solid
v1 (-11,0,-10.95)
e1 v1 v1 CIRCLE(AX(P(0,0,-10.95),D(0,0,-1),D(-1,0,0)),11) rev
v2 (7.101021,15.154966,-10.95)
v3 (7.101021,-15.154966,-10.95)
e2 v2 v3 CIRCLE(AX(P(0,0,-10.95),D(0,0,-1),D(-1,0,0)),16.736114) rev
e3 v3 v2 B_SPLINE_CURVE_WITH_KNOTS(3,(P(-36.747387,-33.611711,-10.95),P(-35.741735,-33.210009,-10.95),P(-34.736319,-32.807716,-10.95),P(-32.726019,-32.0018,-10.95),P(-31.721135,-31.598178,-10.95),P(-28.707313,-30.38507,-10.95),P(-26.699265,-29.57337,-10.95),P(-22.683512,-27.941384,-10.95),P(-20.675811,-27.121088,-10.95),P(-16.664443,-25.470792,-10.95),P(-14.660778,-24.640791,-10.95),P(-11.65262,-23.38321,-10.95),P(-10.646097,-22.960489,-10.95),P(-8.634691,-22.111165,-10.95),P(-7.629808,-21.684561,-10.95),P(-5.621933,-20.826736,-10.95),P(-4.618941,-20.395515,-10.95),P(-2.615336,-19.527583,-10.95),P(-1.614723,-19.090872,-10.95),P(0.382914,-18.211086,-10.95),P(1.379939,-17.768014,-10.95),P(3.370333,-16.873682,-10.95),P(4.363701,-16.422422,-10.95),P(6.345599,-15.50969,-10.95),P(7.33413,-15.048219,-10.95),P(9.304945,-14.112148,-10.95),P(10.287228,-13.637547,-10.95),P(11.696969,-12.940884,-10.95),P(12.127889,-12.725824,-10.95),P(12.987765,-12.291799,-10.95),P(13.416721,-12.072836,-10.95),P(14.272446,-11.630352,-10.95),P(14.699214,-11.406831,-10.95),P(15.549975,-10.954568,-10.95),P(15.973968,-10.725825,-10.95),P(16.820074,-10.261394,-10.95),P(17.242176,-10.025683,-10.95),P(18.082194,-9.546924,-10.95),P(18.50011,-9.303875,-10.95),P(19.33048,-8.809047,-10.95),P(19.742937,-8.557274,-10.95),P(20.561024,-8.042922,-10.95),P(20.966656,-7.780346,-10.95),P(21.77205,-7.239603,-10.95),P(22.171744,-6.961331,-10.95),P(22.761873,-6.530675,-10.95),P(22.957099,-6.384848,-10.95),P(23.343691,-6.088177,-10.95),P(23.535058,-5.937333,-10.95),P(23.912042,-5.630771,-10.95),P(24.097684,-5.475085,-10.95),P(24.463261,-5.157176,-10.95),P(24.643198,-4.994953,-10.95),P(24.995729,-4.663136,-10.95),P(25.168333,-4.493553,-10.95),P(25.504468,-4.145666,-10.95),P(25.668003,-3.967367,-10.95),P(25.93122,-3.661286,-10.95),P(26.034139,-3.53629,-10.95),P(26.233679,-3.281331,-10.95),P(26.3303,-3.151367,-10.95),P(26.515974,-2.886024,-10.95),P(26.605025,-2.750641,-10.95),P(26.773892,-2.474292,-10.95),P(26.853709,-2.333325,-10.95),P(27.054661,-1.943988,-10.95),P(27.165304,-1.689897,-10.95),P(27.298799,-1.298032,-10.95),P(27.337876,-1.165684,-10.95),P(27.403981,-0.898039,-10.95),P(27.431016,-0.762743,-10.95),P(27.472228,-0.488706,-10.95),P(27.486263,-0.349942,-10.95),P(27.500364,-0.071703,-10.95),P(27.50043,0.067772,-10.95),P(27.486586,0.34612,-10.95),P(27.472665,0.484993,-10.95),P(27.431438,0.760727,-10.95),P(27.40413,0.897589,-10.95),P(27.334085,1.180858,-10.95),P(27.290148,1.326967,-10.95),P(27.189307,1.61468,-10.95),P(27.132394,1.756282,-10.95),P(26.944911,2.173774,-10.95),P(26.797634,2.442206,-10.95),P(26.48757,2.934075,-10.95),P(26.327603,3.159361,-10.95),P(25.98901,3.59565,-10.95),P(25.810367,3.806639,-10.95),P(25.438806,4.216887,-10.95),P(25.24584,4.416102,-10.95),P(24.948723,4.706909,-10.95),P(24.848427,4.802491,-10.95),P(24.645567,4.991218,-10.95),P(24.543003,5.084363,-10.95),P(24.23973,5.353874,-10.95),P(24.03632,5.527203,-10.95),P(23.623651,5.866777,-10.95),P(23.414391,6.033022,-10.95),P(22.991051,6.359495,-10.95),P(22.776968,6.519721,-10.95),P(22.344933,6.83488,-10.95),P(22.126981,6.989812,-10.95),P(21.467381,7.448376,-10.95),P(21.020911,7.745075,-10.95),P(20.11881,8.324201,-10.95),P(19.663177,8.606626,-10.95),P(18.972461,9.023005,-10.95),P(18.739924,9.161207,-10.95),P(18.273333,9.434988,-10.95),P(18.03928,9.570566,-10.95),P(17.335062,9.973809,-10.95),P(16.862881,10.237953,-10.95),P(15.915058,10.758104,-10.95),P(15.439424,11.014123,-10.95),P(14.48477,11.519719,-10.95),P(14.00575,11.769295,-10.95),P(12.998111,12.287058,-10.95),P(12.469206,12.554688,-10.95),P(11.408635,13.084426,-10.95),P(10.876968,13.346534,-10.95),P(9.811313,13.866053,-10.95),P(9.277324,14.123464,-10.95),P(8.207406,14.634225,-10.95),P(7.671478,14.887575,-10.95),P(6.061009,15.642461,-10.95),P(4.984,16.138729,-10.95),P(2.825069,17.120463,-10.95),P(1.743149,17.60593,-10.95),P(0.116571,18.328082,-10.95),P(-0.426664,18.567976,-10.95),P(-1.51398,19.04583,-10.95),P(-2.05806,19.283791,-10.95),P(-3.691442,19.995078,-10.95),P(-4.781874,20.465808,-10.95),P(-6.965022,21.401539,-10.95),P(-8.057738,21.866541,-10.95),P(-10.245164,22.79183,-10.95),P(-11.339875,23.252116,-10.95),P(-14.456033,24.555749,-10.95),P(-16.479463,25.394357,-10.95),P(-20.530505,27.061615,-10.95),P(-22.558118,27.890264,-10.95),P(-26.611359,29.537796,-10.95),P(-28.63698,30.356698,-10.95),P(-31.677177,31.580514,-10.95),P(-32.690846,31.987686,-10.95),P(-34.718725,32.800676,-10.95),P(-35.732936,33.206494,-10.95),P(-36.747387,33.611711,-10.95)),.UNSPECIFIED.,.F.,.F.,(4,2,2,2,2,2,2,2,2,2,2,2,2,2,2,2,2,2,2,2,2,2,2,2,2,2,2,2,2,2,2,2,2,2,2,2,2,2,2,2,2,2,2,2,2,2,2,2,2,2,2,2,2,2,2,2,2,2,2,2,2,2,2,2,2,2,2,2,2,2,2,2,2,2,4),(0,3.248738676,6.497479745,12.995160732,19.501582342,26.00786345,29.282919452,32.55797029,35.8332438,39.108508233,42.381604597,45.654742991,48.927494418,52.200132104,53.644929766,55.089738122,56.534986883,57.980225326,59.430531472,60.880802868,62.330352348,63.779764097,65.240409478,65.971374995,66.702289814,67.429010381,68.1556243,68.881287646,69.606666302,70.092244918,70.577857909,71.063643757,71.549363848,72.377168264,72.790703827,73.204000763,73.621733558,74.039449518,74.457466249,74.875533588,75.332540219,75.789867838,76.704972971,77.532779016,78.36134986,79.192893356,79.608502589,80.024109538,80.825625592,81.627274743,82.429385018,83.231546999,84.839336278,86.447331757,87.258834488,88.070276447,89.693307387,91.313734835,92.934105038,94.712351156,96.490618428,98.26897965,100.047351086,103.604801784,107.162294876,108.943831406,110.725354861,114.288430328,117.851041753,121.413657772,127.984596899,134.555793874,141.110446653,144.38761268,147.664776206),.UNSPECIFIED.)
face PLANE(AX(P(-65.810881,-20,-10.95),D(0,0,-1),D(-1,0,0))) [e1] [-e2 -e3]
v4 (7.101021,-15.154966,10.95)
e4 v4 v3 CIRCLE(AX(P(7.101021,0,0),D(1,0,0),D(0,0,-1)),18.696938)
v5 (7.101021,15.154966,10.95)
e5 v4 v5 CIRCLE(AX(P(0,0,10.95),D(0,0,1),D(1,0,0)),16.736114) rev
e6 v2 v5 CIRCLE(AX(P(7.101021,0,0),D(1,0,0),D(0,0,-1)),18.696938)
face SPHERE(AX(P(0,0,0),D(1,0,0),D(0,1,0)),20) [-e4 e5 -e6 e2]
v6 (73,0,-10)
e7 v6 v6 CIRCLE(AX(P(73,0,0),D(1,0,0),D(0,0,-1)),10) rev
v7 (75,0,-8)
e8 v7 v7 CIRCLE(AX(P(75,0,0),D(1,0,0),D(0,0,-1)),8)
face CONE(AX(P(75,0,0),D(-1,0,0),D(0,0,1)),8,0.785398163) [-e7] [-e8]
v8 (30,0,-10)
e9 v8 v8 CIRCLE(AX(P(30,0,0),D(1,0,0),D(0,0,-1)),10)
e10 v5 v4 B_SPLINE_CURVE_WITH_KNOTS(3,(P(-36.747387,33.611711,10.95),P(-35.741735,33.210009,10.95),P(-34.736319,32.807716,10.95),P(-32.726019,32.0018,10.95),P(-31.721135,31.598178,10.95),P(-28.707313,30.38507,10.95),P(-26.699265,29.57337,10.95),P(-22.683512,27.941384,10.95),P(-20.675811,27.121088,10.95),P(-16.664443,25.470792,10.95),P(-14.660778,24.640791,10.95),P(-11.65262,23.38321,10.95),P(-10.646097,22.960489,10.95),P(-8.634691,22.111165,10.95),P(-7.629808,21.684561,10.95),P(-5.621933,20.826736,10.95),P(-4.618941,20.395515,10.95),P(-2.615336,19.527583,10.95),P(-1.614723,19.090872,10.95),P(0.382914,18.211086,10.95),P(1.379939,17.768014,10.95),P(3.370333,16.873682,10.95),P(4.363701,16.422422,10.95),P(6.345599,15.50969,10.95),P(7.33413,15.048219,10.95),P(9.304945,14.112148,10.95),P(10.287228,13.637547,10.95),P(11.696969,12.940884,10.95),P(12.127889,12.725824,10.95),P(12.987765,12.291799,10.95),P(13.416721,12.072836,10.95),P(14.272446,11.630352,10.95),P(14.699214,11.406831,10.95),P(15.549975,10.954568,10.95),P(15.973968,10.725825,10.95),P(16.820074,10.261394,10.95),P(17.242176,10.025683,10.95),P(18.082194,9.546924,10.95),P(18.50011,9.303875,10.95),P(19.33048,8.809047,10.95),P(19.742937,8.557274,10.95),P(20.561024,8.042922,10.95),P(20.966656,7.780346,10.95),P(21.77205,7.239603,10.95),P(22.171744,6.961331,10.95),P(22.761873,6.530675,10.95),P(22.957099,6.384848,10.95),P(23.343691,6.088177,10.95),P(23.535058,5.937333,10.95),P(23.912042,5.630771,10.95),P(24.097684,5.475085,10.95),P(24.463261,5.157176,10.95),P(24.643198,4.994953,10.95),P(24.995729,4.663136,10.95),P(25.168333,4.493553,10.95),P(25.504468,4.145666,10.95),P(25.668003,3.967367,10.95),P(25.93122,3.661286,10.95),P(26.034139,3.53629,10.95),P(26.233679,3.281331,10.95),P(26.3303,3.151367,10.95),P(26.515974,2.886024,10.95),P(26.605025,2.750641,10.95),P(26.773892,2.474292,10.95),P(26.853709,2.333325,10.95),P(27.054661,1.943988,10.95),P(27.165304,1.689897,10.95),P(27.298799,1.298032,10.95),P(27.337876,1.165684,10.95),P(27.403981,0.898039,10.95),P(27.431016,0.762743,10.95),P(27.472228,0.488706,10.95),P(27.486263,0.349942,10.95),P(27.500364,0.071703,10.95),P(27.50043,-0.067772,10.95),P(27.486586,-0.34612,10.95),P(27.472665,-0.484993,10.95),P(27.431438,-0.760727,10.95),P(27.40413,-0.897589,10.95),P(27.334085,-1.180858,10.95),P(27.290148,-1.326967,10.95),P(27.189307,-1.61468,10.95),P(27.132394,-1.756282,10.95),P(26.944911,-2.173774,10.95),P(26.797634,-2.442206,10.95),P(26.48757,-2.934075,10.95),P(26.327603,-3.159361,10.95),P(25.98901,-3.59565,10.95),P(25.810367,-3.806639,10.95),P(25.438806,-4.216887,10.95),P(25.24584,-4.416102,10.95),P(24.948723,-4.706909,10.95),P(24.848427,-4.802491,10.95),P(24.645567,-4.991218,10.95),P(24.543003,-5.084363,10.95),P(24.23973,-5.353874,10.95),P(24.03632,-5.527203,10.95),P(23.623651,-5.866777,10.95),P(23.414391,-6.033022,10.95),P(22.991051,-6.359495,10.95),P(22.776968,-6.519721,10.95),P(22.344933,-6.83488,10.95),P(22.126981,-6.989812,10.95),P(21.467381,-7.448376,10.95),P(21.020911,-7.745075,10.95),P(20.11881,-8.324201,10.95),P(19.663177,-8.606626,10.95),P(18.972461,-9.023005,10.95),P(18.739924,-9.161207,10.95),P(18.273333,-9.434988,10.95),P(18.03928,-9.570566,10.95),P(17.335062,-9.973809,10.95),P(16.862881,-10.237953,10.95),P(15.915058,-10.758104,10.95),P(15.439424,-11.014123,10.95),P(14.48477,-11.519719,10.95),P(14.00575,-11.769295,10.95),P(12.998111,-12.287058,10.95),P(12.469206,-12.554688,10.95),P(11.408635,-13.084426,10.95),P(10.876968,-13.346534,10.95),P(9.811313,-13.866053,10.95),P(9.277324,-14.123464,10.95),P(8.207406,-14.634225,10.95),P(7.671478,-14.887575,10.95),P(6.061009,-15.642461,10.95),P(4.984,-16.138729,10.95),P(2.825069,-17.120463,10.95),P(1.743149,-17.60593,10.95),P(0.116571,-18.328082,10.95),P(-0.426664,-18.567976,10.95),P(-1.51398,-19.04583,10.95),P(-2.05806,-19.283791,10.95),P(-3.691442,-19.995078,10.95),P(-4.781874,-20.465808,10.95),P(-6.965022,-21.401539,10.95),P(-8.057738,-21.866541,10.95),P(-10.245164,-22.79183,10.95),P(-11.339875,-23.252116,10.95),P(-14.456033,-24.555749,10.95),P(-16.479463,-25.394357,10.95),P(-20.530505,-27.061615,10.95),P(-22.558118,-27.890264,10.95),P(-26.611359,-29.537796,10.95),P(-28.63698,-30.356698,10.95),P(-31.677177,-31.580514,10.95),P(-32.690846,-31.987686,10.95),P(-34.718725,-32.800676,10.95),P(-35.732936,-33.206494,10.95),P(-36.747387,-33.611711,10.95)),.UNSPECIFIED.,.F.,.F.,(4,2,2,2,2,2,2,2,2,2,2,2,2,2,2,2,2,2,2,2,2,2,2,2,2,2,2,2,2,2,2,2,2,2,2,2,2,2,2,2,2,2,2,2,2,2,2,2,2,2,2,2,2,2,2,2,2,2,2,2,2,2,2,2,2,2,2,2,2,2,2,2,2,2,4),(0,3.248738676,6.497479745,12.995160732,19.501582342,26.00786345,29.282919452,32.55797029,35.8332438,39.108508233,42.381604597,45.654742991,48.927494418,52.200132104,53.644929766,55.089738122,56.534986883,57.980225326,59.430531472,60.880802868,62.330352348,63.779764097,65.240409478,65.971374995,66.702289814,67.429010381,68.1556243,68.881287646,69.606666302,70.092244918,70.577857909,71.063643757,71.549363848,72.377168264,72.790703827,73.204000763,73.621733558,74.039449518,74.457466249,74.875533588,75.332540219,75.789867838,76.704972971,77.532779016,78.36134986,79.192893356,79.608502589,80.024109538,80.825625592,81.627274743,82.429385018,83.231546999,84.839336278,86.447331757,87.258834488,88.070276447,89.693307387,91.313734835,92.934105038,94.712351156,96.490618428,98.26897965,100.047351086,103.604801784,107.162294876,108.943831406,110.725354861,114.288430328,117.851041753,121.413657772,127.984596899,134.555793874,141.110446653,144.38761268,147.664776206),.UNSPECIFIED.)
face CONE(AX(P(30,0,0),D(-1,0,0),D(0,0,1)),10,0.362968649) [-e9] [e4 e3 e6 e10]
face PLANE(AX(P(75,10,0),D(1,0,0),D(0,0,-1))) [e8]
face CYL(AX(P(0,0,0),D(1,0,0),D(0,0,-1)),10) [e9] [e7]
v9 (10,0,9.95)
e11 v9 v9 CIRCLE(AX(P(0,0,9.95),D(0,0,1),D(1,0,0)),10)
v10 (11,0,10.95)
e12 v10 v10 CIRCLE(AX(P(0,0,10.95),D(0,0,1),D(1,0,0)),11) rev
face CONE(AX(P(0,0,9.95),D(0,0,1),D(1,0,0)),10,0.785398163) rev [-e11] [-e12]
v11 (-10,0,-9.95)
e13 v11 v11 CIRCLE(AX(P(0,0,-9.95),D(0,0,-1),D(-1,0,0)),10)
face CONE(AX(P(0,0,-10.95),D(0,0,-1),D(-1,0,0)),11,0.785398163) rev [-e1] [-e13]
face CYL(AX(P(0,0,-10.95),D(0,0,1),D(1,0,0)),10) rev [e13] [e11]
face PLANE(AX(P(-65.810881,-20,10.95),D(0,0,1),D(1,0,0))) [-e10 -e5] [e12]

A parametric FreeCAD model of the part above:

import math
import FreeCAD as App
import Part
import Sketcher


def edges_at(feature, points):
    """Names of the edges that pass closest to the given points."""
    edges = feature.Shape.Edges
    near = lambda p: min(range(len(edges)), key=lambda i: edges[i].distToShape(Part.Vertex(*p))[0])
    return sorted({f"Edge{near(p) + 1}" for p in points})


def add_polygon(sketch, points):
    """Adds a closed chain of lines whose ends are joined by coincident constraints."""
    first, n = sketch.GeometryCount, len(points)
    for a, b in zip(points, points[1:] + points[:1]):
        sketch.addGeometry(Part.LineSegment(App.Vector(*a, 0), App.Vector(*b, 0)), False)
    for i in range(n):
        sketch.addConstraint(Sketcher.Constraint("Coincident", first + i, 2, first + (i + 1) % n, 1))

doc = App.newDocument("Part")
params = doc.addObject("Spreadsheet::Sheet", "Params")
for row, (alias, value) in enumerate([
    ("sketch1_radius", "20 mm"),
    ("sketch1_width", "95 mm"),
    ("sketch1_width2", "45 mm"),
    ("sketch1_height", "10 mm"),
    ("revolution_angle", "360 deg"),
    ("sketch3_diameter", "20 mm"),
    ("chamfer_size", "1 mm"),
    ("chamfer2_size", "2 mm"),
], start=1):
    params.set(f"A{row}", alias)
    params.set(f"B{row}", "=" + value)
    params.setAlias(f"B{row}", alias)

body = doc.addObject("PartDesign::Body", "Body")

sketch1 = doc.addObject("Sketcher::SketchObject", "Sketch")
body.addObject(sketch1)
sketch1.AttachmentSupport = (doc.XY_Plane, [""])
sketch1.MapMode = "FlatFace"
sketch1.addGeometry([
    Part.LineSegment(App.Vector(30, 10, 0), App.Vector(7, 19, 0)),
    Part.ArcOfCircle(Part.Circle(App.Vector(0, 0, 0), App.Vector(0, 0, 1), 20), math.radians(69), math.radians(180)),
    Part.LineSegment(App.Vector(-20, 0, 0), App.Vector(75, 0, 0)),
    Part.LineSegment(App.Vector(75, 0, 0), App.Vector(75, 10, 0)),
    Part.LineSegment(App.Vector(75, 10, 0), App.Vector(30, 10, 0)),
], False)
sketch1.addConstraint([
    Sketcher.Constraint("Tangent", 0, 2, 1, 1),
    Sketcher.Constraint("Coincident", 1, 2, 2, 1),
    Sketcher.Constraint("Coincident", 2, 2, 3, 1),
    Sketcher.Constraint("Coincident", 3, 2, 4, 1),
    Sketcher.Constraint("Coincident", 4, 2, 0, 1),
    Sketcher.Constraint("Horizontal", 2),
    Sketcher.Constraint("Vertical", 3),
    Sketcher.Constraint("Horizontal", 4),
    Sketcher.Constraint("Coincident", 1, 3, -1, 1),
    Sketcher.Constraint("PointOnObject", 1, 2, -1),
    Sketcher.Constraint("Radius", 1, 20.0),
    Sketcher.Constraint("DistanceX", 2, 1, 2, 2, 95.0),
    Sketcher.Constraint("DistanceX", 4, 2, 4, 1, 45.0),
    Sketcher.Constraint("DistanceY", 3, 1, 3, 2, 10.0),
])
sketch1.setExpression("Constraints[10]", "Params.sketch1_radius")
sketch1.setExpression("Constraints[11]", "Params.sketch1_width")
sketch1.setExpression("Constraints[12]", "Params.sketch1_width2")
sketch1.setExpression("Constraints[13]", "Params.sketch1_height")
revolution = doc.addObject("PartDesign::Revolution", "Revolution")
body.addObject(revolution)
revolution.Profile = sketch1
revolution.ReferenceAxis = (sketch1, ["H_Axis"])
revolution.setExpression("Angle", "Params.revolution_angle")

sketch2 = doc.addObject("Sketcher::SketchObject", "Sketch001")
body.addObject(sketch2)
sketch2.AttachmentSupport = (doc.XZ_Plane, [""])
sketch2.MapMode = "FlatFace"
add_polygon(sketch2, [(-32, 11), (-32, 32), (87, 32), (87, 11)])
add_polygon(sketch2, [(-32, -32), (-32, -11), (87, -11), (87, -32)])
sketch2.addConstraint([
    Sketcher.Constraint("Vertical", 0),
    Sketcher.Constraint("Horizontal", 1),
    Sketcher.Constraint("Vertical", 2),
    Sketcher.Constraint("Horizontal", 3),
    Sketcher.Constraint("Vertical", 4),
    Sketcher.Constraint("Horizontal", 5),
    Sketcher.Constraint("Vertical", 6),
    Sketcher.Constraint("Horizontal", 7),
    Sketcher.Constraint("Symmetric", 3, 2, 4, 2, -1),
    Sketcher.Constraint("Symmetric", 1, 2, 6, 2, -1),
    Sketcher.Constraint("DistanceY", 4, 2, 3, 2, 21.9),
    Sketcher.Constraint("DistanceX", 1, 1, 1, 2, 119.114),
    Sketcher.Constraint("DistanceY", 0, 1, 0, 2, 21.107),
    Sketcher.Constraint("DistanceX", 0, 2, -1, 1, 32.057),
])
pocket1 = doc.addObject("PartDesign::Pocket", "Pocket")
body.addObject(pocket1)
pocket1.Profile = sketch2
pocket1.Type = "ThroughAll"
pocket1.Midplane = True

sketch3 = doc.addObject("Sketcher::SketchObject", "Sketch002")
body.addObject(sketch3)
sketch3.AttachmentSupport = (doc.XY_Plane, [""])
sketch3.MapMode = "FlatFace"
sketch3.addGeometry(Part.Circle(App.Vector(0, 0, 0), App.Vector(0, 0, 1), 10), False)
sketch3.addConstraint([
    Sketcher.Constraint("Coincident", 0, 3, -1, 1),
    Sketcher.Constraint("Diameter", 0, 20.0),
])
sketch3.setExpression("Constraints[1]", "Params.sketch3_diameter")
pocket2 = doc.addObject("PartDesign::Pocket", "Pocket001")
body.addObject(pocket2)
pocket2.Profile = sketch3
pocket2.Type = "ThroughAll"
pocket2.Midplane = True
doc.recompute()

chamfer = doc.addObject("PartDesign::Chamfer", "Chamfer")
body.addObject(chamfer)
chamfer.Base = (pocket2, edges_at(pocket2, [(-10, 0, -10.95), (-10, 0, 10.95)]))
chamfer.setExpression("Size", "Params.chamfer_size")
doc.recompute()

chamfer2 = doc.addObject("PartDesign::Chamfer", "Chamfer001")
body.addObject(chamfer2)
chamfer2.Base = (chamfer, edges_at(chamfer, [(75, 0, 10)]))
chamfer2.setExpression("Size", "Params.chamfer2_size")

doc.recompute()
